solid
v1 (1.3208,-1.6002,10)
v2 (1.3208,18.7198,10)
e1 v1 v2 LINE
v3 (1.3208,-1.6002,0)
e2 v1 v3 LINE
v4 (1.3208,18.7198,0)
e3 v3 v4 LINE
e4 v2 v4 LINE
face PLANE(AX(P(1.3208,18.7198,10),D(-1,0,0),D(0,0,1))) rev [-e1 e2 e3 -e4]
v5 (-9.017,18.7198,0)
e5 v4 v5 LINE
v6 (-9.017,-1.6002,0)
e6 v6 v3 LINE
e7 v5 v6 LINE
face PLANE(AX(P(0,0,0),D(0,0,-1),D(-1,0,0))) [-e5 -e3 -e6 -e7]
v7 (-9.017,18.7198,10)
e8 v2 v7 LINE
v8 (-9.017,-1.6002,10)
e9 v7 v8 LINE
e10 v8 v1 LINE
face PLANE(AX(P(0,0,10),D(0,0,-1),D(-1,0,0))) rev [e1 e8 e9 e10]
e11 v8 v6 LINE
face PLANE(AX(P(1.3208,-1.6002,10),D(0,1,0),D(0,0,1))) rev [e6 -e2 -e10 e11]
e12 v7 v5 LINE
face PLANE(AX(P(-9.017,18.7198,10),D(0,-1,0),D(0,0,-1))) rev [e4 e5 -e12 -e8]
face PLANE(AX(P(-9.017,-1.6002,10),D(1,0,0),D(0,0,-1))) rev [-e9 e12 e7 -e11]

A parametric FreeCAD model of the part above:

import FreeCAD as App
import Part
import Sketcher
from FreeCAD import Vector
Q = App.Units.Quantity


def add_polygon(sketch, points):
    """Adds a closed chain of lines whose ends are joined by coincident constraints."""
    first, n = sketch.GeometryCount, len(points)
    for a, b in zip(points, points[1:] + points[:1]):
        sketch.addGeometry(Part.LineSegment(App.Vector(*a, 0), App.Vector(*b, 0)), False)
    for i in range(n):
        sketch.addConstraint(Sketcher.Constraint("Coincident", first + i, 2, first + (i + 1) % n, 1))

doc = App.newDocument("Part")
body = doc.addObject("PartDesign::Body", "Body")

sketch1 = body.newObject("Sketcher::SketchObject", "Sketch")
sketch1.AttachmentSupport = (doc.getObject("XY_Plane"), [""])
sketch1.MapMode = "FlatFace"
add_polygon(sketch1, [(-9, 19), (-9, -2), (1, -2), (1, 19)])
sketch1.addConstraint(Sketcher.Constraint("Vertical", 0))
sketch1.addConstraint(Sketcher.Constraint("Horizontal", 1))
sketch1.addConstraint(Sketcher.Constraint("Vertical", 2))
sketch1.addConstraint(Sketcher.Constraint("Horizontal", 3))
sketch1.addConstraint(Sketcher.Constraint("DistanceY", 0, 2, 0, 1, Q("0.8 in")))
sketch1.addConstraint(Sketcher.Constraint("DistanceX", 1, 1, 1, 2, Q("0.407 in")))
sketch1.addConstraint(Sketcher.Constraint("DistanceX", 0, 2, -1, 1, Q("0.355 in")))
sketch1.addConstraint(Sketcher.Constraint("DistanceY", 0, 2, -1, 1, Q("0.063 in")))
pad1 = body.newObject("PartDesign::Pad", "Pad")
pad1.Profile = sketch1
pad1.Length = 10

doc.recompute()
